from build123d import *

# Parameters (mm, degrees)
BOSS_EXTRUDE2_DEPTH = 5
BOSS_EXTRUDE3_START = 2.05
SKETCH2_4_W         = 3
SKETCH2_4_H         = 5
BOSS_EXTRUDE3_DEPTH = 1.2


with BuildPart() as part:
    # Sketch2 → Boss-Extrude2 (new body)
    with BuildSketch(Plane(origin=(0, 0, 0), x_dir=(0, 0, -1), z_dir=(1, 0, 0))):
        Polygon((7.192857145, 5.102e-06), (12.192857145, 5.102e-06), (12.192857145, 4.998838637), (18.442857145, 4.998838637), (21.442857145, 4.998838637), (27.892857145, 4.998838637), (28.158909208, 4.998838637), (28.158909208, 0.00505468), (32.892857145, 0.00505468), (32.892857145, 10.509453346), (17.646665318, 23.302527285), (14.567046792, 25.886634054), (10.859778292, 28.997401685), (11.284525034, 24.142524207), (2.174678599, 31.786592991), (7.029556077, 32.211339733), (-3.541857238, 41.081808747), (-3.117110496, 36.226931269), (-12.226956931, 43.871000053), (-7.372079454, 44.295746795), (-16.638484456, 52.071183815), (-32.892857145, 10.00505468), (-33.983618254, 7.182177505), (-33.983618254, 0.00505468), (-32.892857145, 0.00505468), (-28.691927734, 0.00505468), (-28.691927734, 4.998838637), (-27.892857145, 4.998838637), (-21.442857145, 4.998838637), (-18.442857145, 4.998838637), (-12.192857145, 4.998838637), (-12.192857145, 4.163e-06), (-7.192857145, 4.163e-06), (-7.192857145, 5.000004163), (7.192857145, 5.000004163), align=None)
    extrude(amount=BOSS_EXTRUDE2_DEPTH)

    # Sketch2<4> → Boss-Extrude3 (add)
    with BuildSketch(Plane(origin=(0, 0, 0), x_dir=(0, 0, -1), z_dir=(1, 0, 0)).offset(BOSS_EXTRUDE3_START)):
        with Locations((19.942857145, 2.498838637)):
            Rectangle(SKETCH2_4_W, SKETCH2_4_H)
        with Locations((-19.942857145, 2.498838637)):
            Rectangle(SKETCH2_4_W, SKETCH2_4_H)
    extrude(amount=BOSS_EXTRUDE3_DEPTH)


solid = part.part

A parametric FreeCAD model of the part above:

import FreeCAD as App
import Part
import Sketcher

V = App.Vector
Q = App.Units.Quantity

doc = App.newDocument("Part")
body = doc.addObject("PartDesign::Body", "Body")

sketch1 = doc.addObject("Sketcher::SketchObject", "Sketch")
body.addObject(sketch1)
sketch1.AttachmentSupport = (doc.YZ_Plane, [""])
sketch1.MapMode = "FlatFace"
sketch1.addGeometry(Part.LineSegment(V(0.000005, -7.192857, 0), V(0.000005, -12.192857, 0)), False)
sketch1.addGeometry(Part.LineSegment(V(0.000005, -12.192857, 0), V(4.998839, -12.192857, 0)), False)
sketch1.addGeometry(Part.LineSegment(V(4.998839, -12.192857, 0), V(4.998839, -28.158909, 0)), False)
sketch1.addGeometry(Part.LineSegment(V(4.998839, -28.158909, 0), V(0.005055, -28.158909, 0)), False)
sketch1.addGeometry(Part.LineSegment(V(0.005055, -28.158909, 0), V(0.005055, -32.892857, 0)), False)
sketch1.addGeometry(Part.LineSegment(V(0.005055, -32.892857, 0), V(10.509453, -32.892857, 0)), False)
sketch1.addGeometry(Part.LineSegment(V(10.509453, -32.892857, 0), V(23.302527, -17.646665, 0)), False)
sketch1.addGeometry(Part.LineSegment(V(23.302527, -17.646665, 0), V(25.886634, -14.567047, 0)), False)
sketch1.addGeometry(Part.LineSegment(V(25.886634, -14.567047, 0), V(28.997402, -10.859778, 0)), False)
sketch1.addGeometry(Part.LineSegment(V(28.997402, -10.859778, 0), V(24.142524, -11.284525, 0)), False)
sketch1.addGeometry(Part.LineSegment(V(24.142524, -11.284525, 0), V(31.786593, -2.174679, 0)), False)
sketch1.addGeometry(Part.LineSegment(V(31.786593, -2.174679, 0), V(32.21134, -7.029556, 0)), False)
sketch1.addGeometry(Part.LineSegment(V(32.21134, -7.029556, 0), V(41.081809, 3.541857, 0)), False)
sketch1.addGeometry(Part.LineSegment(V(41.081809, 3.541857, 0), V(36.226931, 3.11711, 0)), False)
sketch1.addGeometry(Part.LineSegment(V(36.226931, 3.11711, 0), V(43.871, 12.226957, 0)), False)
sketch1.addGeometry(Part.LineSegment(V(43.871, 12.226957, 0), V(44.295747, 7.372079, 0)), False)
sketch1.addGeometry(Part.LineSegment(V(44.295747, 7.372079, 0), V(52.071184, 16.638484, 0)), False)
sketch1.addGeometry(Part.LineSegment(V(52.071184, 16.638484, 0), V(10.005055, 32.892857, 0)), False)
sketch1.addGeometry(Part.LineSegment(V(10.005055, 32.892857, 0), V(7.182178, 33.983618, 0)), False)
sketch1.addGeometry(Part.LineSegment(V(7.182178, 33.983618, 0), V(0.005055, 33.983618, 0)), False)
sketch1.addGeometry(Part.LineSegment(V(0.005055, 33.983618, 0), V(0.005055, 28.691928, 0)), False)
sketch1.addGeometry(Part.LineSegment(V(0.005055, 28.691928, 0), V(4.998839, 28.691928, 0)), False)
sketch1.addGeometry(Part.LineSegment(V(4.998839, 28.691928, 0), V(4.998839, 12.192857, 0)), False)
sketch1.addGeometry(Part.LineSegment(V(4.998839, 12.192857, 0), V(0.000004, 12.192857, 0)), False)
sketch1.addGeometry(Part.LineSegment(V(0.000004, 12.192857, 0), V(0.000004, 7.192857, 0)), False)
sketch1.addGeometry(Part.LineSegment(V(0.000004, 7.192857, 0), V(5.000004, 7.192857, 0)), False)
sketch1.addGeometry(Part.LineSegment(V(5.000004, 7.192857, 0), V(5.000004, -7.192857, 0)), False)
sketch1.addGeometry(Part.LineSegment(V(5.000004, -7.192857, 0), V(0.000005, -7.192857, 0)), False)
sketch1.addConstraint(Sketcher.Constraint("Coincident", 0, 2, 1, 1))
sketch1.addConstraint(Sketcher.Constraint("Coincident", 1, 2, 2, 1))
sketch1.addConstraint(Sketcher.Constraint("Coincident", 2, 2, 3, 1))
sketch1.addConstraint(Sketcher.Constraint("Coincident", 3, 2, 4, 1))
sketch1.addConstraint(Sketcher.Constraint("Coincident", 4, 2, 5, 1))
sketch1.addConstraint(Sketcher.Constraint("Coincident", 5, 2, 6, 1))
sketch1.addConstraint(Sketcher.Constraint("Coincident", 6, 2, 7, 1))
sketch1.addConstraint(Sketcher.Constraint("Coincident", 7, 2, 8, 1))
sketch1.addConstraint(Sketcher.Constraint("Coincident", 8, 2, 9, 1))
sketch1.addConstraint(Sketcher.Constraint("Coincident", 9, 2, 10, 1))
sketch1.addConstraint(Sketcher.Constraint("Coincident", 10, 2, 11, 1))
sketch1.addConstraint(Sketcher.Constraint("Coincident", 11, 2, 12, 1))
sketch1.addConstraint(Sketcher.Constraint("Coincident", 12, 2, 13, 1))
sketch1.addConstraint(Sketcher.Constraint("Coincident", 13, 2, 14, 1))
sketch1.addConstraint(Sketcher.Constraint("Coincident", 14, 2, 15, 1))
sketch1.addConstraint(Sketcher.Constraint("Coincident", 15, 2, 16, 1))
sketch1.addConstraint(Sketcher.Constraint("Coincident", 16, 2, 17, 1))
sketch1.addConstraint(Sketcher.Constraint("Coincident", 17, 2, 18, 1))
sketch1.addConstraint(Sketcher.Constraint("Coincident", 18, 2, 19, 1))
sketch1.addConstraint(Sketcher.Constraint("Coincident", 19, 2, 20, 1))
sketch1.addConstraint(Sketcher.Constraint("Coincident", 20, 2, 21, 1))
sketch1.addConstraint(Sketcher.Constraint("Coincident", 21, 2, 22, 1))
sketch1.addConstraint(Sketcher.Constraint("Coincident", 22, 2, 23, 1))
sketch1.addConstraint(Sketcher.Constraint("Coincident", 23, 2, 24, 1))
sketch1.addConstraint(Sketcher.Constraint("Coincident", 24, 2, 25, 1))
sketch1.addConstraint(Sketcher.Constraint("Coincident", 25, 2, 26, 1))
sketch1.addConstraint(Sketcher.Constraint("Coincident", 26, 2, 27, 1))
sketch1.addConstraint(Sketcher.Constraint("Coincident", 27, 2, 0, 1))
sketch1.addConstraint(Sketcher.Constraint("Vertical", 0))
sketch1.addConstraint(Sketcher.Constraint("Horizontal", 1))
sketch1.addConstraint(Sketcher.Constraint("Vertical", 2))
sketch1.addConstraint(Sketcher.Constraint("Horizontal", 3))
sketch1.addConstraint(Sketcher.Constraint("Vertical", 4))
sketch1.addConstraint(Sketcher.Constraint("Horizontal", 5))
sketch1.addConstraint(Sketcher.Constraint("Horizontal", 19))
sketch1.addConstraint(Sketcher.Constraint("Vertical", 20))
sketch1.addConstraint(Sketcher.Constraint("Horizontal", 21))
sketch1.addConstraint(Sketcher.Constraint("Vertical", 22))
sketch1.addConstraint(Sketcher.Constraint("Horizontal", 23))
sketch1.addConstraint(Sketcher.Constraint("Vertical", 24))
sketch1.addConstraint(Sketcher.Constraint("Horizontal", 25))
sketch1.addConstraint(Sketcher.Constraint("Vertical", 26))
sketch1.addConstraint(Sketcher.Constraint("Horizontal", 27))
sketch1.addConstraint(Sketcher.Constraint("Symmetric", 0, 2, 23, 2, -1, 1))
sketch1.addConstraint(Sketcher.Constraint("Symmetric", 24, 2, 27, 2, -1))
sketch1.addConstraint(Sketcher.Constraint("Parallel", 6, 7))
sketch1.addConstraint(Sketcher.Constraint("Parallel", 7, 8))
sketch1.addConstraint(Sketcher.Constraint("Parallel", 8, 10))
sketch1.addConstraint(Sketcher.Constraint("Perpendicular", 9, 11))
sketch1.addConstraint(Sketcher.Constraint("Parallel", 10, 12))
sketch1.addConstraint(Sketcher.Constraint("Perpendicular", 11, 13))
sketch1.addConstraint(Sketcher.Constraint("Parallel", 12, 14))
sketch1.addConstraint(Sketcher.Constraint("Perpendicular", 13, 15))
sketch1.addConstraint(Sketcher.Constraint("Parallel", 14, 16))
sketch1.addConstraint(Sketcher.Constraint("Parallel", 17, 18))
sketch1.addConstraint(Sketcher.Constraint("Vertical", 4, 2, 19, 2))
sketch1.addConstraint(Sketcher.Constraint("Vertical", 2, 2, 21, 2))
sketch1.addConstraint(Sketcher.Constraint("Equal", 27, 0))
sketch1.addConstraint(Sketcher.Constraint("Equal", 9, 11))
sketch1.addConstraint(Sketcher.Constraint("Equal", 11, 13))
sketch1.addConstraint(Sketcher.Constraint("Equal", 10, 14))
sketch1.addConstraint(Sketcher.Constraint("Equal", 13, 15))
sketch1.addConstraint(Sketcher.Constraint("DistanceX", 25, 1, 25, 2, 5.0))
sketch1.addConstraint(Sketcher.Constraint("Angle", 6, Q("50 deg")))
sketch1.addConstraint(Sketcher.Constraint("Angle", 9, Q("-175 deg")))
sketch1.addConstraint(Sketcher.Constraint("DistanceX", 19, 2, 17, 2, 10.0))
sketch1.addConstraint(Sketcher.Constraint("Distance", 12, 13.8))
sketch1.addConstraint(Sketcher.Constraint("DistanceY", 4, 2, 0, 2, 20.7))
sketch1.addConstraint(Sketcher.Constraint("DistanceY", 22, 2, 17, 2, 20.7))
sketch1.addConstraint(Sketcher.Constraint("DistanceX", 5, 1, 5, 2, 10.504399))
sketch1.addConstraint(Sketcher.Constraint("DistanceX", -1, 1, 14, 2, 43.871))
sketch1.addConstraint(Sketcher.Constraint("DistanceY", 12, 2, 17, 2, 29.351))
sketch1.addConstraint(Sketcher.Constraint("DistanceY", 20, 2, 20, 1, 5.291691))
sketch1.addConstraint(Sketcher.Constraint("DistanceY", 22, 2, 22, 1, 16.499071))
sketch1.addConstraint(Sketcher.Constraint("DistanceX", -1, 1, 8, 2, 28.997402))
sketch1.addConstraint(Sketcher.Constraint("DistanceY", 8, 2, 10, 2, 8.6851))
sketch1.addConstraint(Sketcher.Constraint("Distance", 6, 19.90249))
sketch1.addConstraint(Sketcher.Constraint("Distance", 17, 45.097271))
sketch1.addConstraint(Sketcher.Constraint("DistanceX", 1, 1, 1, 2, 4.998834))
sketch1.addConstraint(Sketcher.Constraint("DistanceX", 3, 2, 3, 1, 4.993784))
sketch1.addConstraint(Sketcher.Constraint("DistanceY", 2, 2, 2, 1, 15.966052))
sketch1.addConstraint(Sketcher.Constraint("DistanceY", 6, 2, 7, 2, 3.079619))
pad1 = doc.addObject("PartDesign::Pad", "Pad")
body.addObject(pad1)
pad1.Profile = sketch1
pad1.Length = 5

sketch2 = doc.addObject("Sketcher::SketchObject", "Sketch001")
body.addObject(sketch2)
sketch2.AttachmentSupport = (doc.YZ_Plane, [""])
sketch2.MapMode = "FlatFace"
sketch2.AttachmentOffset = App.Placement(V(0, 0, 2.05), App.Rotation())
sketch2.addGeometry(Part.LineSegment(V(4.998839, -18.442857, 0), V(-0.001161, -18.442857, 0)), False)
sketch2.addGeometry(Part.LineSegment(V(-0.001161, -18.442857, 0), V(-0.001161, -21.442857, 0)), False)
sketch2.addGeometry(Part.LineSegment(V(-0.001161, -21.442857, 0), V(4.998839, -21.442857, 0)), False)
sketch2.addGeometry(Part.LineSegment(V(4.998839, -21.442857, 0), V(4.998839, -18.442857, 0)), False)
sketch2.addGeometry(Part.LineSegment(V(4.998839, 21.442857, 0), V(-0.001161, 21.442857, 0)), False)
sketch2.addGeometry(Part.LineSegment(V(-0.001161, 21.442857, 0), V(-0.001161, 18.442857, 0)), False)
sketch2.addGeometry(Part.LineSegment(V(-0.001161, 18.442857, 0), V(4.998839, 18.442857, 0)), False)
sketch2.addGeometry(Part.LineSegment(V(4.998839, 18.442857, 0), V(4.998839, 21.442857, 0)), False)
sketch2.addConstraint(Sketcher.Constraint("Coincident", 0, 2, 1, 1))
sketch2.addConstraint(Sketcher.Constraint("Coincident", 1, 2, 2, 1))
sketch2.addConstraint(Sketcher.Constraint("Coincident", 2, 2, 3, 1))
sketch2.addConstraint(Sketcher.Constraint("Coincident", 3, 2, 0, 1))
sketch2.addConstraint(Sketcher.Constraint("Coincident", 4, 2, 5, 1))
sketch2.addConstraint(Sketcher.Constraint("Coincident", 5, 2, 6, 1))
sketch2.addConstraint(Sketcher.Constraint("Coincident", 6, 2, 7, 1))
sketch2.addConstraint(Sketcher.Constraint("Coincident", 7, 2, 4, 1))
sketch2.addConstraint(Sketcher.Constraint("Horizontal", 0))
sketch2.addConstraint(Sketcher.Constraint("Vertical", 1))
sketch2.addConstraint(Sketcher.Constraint("Horizontal", 2))
sketch2.addConstraint(Sketcher.Constraint("Vertical", 3))
sketch2.addConstraint(Sketcher.Constraint("Horizontal", 4))
sketch2.addConstraint(Sketcher.Constraint("Vertical", 5))
sketch2.addConstraint(Sketcher.Constraint("Horizontal", 6))
sketch2.addConstraint(Sketcher.Constraint("Vertical", 7))
sketch2.addConstraint(Sketcher.Constraint("Symmetric", 1, 2, 4, 2, -1))
sketch2.addConstraint(Sketcher.Constraint("Symmetric", 3, 2, 6, 2, -1))
sketch2.addConstraint(Sketcher.Constraint("DistanceX", 0, 2, 0, 1, 5.0))
sketch2.addConstraint(Sketcher.Constraint("DistanceY", 1, 2, 1, 1, 3.0))
sketch2.addConstraint(Sketcher.Constraint("DistanceX", 0, 2, -1, 1, 0.001161))
sketch2.addConstraint(Sketcher.Constraint("DistanceY", 0, 2, -1, 1, 18.442857))
pad2 = doc.addObject("PartDesign::Pad", "Pad001")
body.addObject(pad2)
pad2.Profile = sketch2
pad2.Length = 1.2

doc.recompute()
